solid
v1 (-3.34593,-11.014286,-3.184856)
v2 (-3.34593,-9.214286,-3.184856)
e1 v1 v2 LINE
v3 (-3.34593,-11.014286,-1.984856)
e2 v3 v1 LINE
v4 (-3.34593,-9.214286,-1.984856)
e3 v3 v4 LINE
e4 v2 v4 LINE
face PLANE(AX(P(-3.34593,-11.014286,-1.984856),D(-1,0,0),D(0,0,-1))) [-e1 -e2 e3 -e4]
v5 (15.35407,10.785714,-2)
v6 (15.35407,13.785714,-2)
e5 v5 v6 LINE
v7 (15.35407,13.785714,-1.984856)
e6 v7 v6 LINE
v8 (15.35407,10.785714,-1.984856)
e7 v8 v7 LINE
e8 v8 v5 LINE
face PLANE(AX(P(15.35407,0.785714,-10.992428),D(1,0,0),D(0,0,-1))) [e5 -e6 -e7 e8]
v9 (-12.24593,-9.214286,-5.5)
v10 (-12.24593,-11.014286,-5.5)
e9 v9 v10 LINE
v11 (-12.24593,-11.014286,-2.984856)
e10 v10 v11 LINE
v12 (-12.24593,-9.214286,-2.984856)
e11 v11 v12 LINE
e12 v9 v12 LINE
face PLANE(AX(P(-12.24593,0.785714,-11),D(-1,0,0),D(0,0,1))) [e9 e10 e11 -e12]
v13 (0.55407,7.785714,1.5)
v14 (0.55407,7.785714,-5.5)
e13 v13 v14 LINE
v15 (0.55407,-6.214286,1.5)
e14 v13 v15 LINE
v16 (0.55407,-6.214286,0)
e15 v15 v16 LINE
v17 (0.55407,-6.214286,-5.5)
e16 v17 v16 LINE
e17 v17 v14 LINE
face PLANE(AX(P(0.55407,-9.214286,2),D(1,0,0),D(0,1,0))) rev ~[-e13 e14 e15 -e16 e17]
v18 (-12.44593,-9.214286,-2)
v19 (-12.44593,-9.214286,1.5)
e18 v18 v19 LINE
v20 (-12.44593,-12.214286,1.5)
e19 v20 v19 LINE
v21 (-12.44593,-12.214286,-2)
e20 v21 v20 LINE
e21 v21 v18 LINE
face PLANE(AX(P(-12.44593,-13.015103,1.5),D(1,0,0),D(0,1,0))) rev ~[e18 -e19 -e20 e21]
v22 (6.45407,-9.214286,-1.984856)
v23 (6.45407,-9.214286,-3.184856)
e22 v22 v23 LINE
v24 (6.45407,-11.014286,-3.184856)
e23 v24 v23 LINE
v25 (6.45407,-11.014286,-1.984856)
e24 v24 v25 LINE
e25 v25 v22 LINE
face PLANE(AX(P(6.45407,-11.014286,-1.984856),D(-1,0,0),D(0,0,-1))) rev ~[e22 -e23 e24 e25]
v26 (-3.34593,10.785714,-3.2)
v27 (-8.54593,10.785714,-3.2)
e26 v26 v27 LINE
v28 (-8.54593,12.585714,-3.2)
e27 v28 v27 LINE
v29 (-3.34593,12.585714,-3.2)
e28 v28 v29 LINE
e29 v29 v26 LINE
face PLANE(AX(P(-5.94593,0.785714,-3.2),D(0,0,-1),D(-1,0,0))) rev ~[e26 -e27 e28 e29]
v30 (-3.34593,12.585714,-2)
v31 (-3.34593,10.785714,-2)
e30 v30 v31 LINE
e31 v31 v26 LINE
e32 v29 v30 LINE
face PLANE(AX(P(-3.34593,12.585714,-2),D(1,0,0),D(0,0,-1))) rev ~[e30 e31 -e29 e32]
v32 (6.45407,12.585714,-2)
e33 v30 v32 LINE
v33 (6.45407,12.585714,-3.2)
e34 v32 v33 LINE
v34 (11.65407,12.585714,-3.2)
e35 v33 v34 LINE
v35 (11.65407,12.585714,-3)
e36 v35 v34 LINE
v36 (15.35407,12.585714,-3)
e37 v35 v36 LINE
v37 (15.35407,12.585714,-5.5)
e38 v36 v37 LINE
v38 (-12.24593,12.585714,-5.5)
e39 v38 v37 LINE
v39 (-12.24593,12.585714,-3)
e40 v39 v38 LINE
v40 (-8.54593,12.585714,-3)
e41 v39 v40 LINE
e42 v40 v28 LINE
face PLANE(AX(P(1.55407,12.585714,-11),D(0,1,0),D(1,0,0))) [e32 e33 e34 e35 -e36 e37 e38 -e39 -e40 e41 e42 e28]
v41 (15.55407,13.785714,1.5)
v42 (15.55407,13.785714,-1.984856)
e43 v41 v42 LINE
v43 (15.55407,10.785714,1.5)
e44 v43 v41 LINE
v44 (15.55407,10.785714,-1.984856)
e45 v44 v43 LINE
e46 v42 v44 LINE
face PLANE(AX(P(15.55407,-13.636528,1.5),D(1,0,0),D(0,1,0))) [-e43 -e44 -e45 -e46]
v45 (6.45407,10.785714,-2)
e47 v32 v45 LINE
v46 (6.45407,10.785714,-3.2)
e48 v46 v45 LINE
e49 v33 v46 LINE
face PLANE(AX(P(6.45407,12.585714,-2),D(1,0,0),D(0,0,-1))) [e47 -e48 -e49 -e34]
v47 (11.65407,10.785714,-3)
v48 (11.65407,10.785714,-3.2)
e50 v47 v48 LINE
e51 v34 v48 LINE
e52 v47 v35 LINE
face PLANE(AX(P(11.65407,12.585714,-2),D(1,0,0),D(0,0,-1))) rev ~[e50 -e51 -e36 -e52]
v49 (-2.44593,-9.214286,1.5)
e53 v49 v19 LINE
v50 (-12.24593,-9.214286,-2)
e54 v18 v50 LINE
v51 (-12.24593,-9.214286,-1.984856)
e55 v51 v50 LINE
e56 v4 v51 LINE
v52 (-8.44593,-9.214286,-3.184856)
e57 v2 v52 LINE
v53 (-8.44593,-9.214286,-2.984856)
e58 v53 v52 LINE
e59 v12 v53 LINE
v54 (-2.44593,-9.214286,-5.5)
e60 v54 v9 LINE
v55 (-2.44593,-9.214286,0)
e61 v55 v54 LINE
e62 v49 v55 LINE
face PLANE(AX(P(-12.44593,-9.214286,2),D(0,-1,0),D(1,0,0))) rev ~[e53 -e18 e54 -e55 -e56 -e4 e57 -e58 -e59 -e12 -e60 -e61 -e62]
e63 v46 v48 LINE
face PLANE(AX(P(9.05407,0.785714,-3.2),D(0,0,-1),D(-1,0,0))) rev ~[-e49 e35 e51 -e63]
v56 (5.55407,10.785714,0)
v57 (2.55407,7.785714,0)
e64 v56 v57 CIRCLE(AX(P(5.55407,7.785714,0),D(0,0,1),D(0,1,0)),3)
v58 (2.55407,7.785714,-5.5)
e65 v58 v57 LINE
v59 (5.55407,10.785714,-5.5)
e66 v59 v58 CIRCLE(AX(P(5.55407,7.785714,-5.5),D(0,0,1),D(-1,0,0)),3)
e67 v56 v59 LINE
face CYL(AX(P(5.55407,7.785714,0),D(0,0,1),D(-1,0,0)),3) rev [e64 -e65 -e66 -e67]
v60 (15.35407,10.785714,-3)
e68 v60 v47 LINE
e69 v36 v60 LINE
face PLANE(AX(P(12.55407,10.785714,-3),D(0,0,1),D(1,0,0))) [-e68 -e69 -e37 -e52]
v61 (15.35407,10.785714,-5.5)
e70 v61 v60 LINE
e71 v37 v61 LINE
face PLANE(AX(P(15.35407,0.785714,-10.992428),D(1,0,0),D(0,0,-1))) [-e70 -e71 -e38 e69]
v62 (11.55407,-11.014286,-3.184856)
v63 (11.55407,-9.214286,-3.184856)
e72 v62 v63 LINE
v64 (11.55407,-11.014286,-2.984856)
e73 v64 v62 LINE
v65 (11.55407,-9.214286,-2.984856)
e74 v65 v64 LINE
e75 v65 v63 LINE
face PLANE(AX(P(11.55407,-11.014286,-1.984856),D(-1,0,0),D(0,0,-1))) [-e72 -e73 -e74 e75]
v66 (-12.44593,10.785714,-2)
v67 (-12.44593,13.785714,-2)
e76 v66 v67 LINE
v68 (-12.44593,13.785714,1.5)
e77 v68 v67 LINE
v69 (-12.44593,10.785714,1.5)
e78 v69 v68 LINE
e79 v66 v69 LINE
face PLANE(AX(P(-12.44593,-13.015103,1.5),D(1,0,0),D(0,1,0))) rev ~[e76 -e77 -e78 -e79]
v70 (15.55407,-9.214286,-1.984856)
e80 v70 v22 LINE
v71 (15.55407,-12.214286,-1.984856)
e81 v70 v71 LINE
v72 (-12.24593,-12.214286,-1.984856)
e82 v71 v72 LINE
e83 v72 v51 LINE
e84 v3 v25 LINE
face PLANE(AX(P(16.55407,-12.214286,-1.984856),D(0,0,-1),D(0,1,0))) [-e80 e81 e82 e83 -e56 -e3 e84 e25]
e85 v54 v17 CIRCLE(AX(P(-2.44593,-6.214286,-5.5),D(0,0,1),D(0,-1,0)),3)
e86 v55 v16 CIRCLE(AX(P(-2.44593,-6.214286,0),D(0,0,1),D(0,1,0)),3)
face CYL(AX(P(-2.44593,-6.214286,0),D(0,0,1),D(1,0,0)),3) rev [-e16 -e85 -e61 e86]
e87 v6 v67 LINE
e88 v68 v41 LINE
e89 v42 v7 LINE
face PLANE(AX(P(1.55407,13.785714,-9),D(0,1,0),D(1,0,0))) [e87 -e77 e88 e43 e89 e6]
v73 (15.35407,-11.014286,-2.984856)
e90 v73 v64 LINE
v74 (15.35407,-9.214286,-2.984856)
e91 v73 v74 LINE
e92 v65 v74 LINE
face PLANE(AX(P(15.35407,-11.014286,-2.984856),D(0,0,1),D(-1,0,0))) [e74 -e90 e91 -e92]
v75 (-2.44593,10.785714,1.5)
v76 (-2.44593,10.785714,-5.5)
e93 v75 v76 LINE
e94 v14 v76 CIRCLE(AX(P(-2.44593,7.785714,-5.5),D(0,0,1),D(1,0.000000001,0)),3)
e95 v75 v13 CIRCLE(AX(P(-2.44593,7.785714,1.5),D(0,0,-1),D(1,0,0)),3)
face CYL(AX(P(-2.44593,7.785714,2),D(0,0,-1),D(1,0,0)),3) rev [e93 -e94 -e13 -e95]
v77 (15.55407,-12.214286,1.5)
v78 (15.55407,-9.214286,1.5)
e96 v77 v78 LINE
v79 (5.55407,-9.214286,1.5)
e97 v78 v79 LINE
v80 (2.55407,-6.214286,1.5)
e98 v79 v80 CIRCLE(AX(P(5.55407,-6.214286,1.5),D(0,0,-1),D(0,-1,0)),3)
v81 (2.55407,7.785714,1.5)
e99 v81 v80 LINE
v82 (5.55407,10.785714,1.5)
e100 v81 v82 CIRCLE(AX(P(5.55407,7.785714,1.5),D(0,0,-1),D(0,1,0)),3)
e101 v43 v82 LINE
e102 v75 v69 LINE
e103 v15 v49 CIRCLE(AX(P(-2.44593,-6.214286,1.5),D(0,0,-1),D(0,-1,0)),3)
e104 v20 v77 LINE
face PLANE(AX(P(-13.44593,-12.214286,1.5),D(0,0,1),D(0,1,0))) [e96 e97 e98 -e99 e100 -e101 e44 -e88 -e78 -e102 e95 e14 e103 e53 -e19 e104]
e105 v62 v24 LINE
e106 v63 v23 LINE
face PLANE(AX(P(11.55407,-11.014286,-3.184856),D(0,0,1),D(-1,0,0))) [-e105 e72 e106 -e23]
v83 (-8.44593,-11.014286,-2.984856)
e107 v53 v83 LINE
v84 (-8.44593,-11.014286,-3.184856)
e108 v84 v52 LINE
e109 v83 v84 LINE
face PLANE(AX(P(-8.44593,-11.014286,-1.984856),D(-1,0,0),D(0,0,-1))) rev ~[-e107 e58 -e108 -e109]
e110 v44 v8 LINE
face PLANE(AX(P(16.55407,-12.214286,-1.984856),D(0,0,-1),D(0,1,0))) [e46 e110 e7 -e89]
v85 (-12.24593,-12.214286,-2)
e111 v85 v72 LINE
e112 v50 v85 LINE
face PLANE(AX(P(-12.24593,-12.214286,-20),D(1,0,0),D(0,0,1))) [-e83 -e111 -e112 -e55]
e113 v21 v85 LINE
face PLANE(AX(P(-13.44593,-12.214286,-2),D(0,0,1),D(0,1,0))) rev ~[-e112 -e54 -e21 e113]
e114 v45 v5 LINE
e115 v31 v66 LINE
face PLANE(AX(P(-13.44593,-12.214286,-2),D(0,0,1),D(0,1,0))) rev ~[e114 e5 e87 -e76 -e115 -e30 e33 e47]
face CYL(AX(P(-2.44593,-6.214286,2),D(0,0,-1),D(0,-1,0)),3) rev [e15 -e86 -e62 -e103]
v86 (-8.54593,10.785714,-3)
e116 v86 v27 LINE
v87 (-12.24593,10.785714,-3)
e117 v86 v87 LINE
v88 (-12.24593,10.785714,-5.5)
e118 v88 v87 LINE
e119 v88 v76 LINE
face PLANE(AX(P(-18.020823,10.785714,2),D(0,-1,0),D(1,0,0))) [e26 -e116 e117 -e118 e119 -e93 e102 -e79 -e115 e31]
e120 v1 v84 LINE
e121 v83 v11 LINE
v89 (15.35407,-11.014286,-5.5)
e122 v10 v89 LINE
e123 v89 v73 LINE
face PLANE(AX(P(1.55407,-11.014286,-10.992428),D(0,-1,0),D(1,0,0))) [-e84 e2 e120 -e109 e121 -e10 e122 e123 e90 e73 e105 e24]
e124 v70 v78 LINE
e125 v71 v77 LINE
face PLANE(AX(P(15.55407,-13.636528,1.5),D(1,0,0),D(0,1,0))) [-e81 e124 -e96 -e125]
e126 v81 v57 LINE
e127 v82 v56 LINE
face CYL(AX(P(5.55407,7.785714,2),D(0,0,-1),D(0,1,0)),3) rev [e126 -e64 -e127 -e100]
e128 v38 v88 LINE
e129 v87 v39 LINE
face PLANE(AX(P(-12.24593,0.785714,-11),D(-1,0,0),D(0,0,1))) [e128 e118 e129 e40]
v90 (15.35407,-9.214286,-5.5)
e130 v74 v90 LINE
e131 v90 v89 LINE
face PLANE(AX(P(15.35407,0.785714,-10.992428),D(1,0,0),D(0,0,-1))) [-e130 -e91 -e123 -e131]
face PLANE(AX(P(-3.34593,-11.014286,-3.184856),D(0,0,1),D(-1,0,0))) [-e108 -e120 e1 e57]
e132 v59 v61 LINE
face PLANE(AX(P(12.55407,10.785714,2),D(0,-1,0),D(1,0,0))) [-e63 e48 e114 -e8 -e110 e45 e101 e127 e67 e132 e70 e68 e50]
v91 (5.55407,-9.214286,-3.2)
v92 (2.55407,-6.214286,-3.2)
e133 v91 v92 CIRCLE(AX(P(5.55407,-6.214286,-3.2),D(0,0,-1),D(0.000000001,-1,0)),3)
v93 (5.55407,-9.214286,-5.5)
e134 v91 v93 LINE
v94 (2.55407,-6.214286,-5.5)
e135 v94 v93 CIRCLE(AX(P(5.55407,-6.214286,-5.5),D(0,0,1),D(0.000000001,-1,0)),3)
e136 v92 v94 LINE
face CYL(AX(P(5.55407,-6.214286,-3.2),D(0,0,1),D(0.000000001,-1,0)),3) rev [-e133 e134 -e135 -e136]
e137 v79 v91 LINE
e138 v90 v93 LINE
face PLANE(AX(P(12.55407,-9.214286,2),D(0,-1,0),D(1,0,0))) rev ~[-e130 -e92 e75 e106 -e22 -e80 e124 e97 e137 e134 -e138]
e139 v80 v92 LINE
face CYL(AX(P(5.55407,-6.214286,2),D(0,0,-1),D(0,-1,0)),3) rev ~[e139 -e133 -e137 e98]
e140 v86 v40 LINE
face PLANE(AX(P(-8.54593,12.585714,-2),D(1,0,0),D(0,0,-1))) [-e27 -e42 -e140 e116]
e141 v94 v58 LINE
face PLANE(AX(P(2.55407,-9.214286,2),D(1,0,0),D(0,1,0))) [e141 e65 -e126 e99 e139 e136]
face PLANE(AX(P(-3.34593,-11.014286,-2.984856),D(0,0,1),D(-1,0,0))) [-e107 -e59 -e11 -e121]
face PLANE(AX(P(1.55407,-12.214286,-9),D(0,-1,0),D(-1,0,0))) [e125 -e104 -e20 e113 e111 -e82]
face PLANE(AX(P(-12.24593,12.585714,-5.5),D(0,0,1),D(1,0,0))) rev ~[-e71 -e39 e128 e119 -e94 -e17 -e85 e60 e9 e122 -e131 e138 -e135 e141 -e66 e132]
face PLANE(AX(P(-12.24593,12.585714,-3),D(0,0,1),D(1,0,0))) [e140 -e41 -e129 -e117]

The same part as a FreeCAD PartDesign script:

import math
import FreeCAD as App
import Part
import Sketcher


def edges_at(feature, points):
    """Names of the edges that pass closest to the given points."""
    edges = feature.Shape.Edges
    near = lambda p: min(range(len(edges)), key=lambda i: edges[i].distToShape(Part.Vertex(*p))[0])
    return sorted({f"Edge{near(p) + 1}" for p in points})


def add_polygon(sketch, points):
    """Adds a closed chain of lines whose ends are joined by coincident constraints."""
    first, n = sketch.GeometryCount, len(points)
    for a, b in zip(points, points[1:] + points[:1]):
        sketch.addGeometry(Part.LineSegment(App.Vector(*a, 0), App.Vector(*b, 0)), False)
    for i in range(n):
        sketch.addConstraint(Sketcher.Constraint("Coincident", first + i, 2, first + (i + 1) % n, 1))

doc = App.newDocument("Part")
body = doc.addObject("PartDesign::Body", "Body")

# Sketch on XY plane
sketch1 = body.newObject("Sketcher::SketchObject", "Sketch")
sketch1.AttachmentSupport = (doc.getObject("XY_Plane"), [""])
sketch1.MapMode = "FlatFace"
add_polygon(sketch1, [(-13.44593, 11.785714), (-13.44593, -10.214286), (16.55407, -10.214286), (16.55407, 11.785714)])  # lines 0-3
sketch1.addConstraint([
    Sketcher.Constraint("Vertical", 0),
    Sketcher.Constraint("Horizontal", 1),
    Sketcher.Constraint("Vertical", 2),
    Sketcher.Constraint("Horizontal", 3),
    Sketcher.Constraint("DistanceX", 1, 1, 1, 2, 30.0),
    Sketcher.Constraint("DistanceY", 0, 2, 0, 1, 22.0),
    Sketcher.Constraint("DistanceX", 0, 2, -1, 1, 13.44593),
    Sketcher.Constraint("DistanceY", 0, 2, -1, 1, 10.214286),
])
pad1 = body.newObject("PartDesign::Pad", "Pad")
pad1.Profile = sketch1
pad1.Length = 2

# Sketch on XY plane
sketch2 = body.newObject("Sketcher::SketchObject", "Sketch001")
sketch2.AttachmentSupport = (doc.getObject("XY_Plane"), [""])
sketch2.MapMode = "FlatFace"
sketch2.AttachmentOffset = App.Placement(App.Vector(0, 0, 2), App.Rotation())
add_polygon(sketch2, [(-12.44593, 10.785714), (-12.44593, -9.214286), (0.55407, -9.214286), (0.55407, 10.785714)])  # lines 0-3
add_polygon(sketch2, [(2.55407, 10.785714), (2.55407, -9.214286), (15.55407, -9.214286), (15.55407, 10.785714)])  # lines 4-7
sketch2.addConstraint([
    Sketcher.Constraint("Vertical", 0),
    Sketcher.Constraint("Horizontal", 1),
    Sketcher.Constraint("Vertical", 2),
    Sketcher.Constraint("Horizontal", 3),
    Sketcher.Constraint("Vertical", 4),
    Sketcher.Constraint("Horizontal", 5),
    Sketcher.Constraint("Vertical", 6),
    Sketcher.Constraint("Horizontal", 7),
    Sketcher.Constraint("Horizontal", 1, 2, 4, 2),
    Sketcher.Constraint("Horizontal", 3, 2, 6, 2),
    Sketcher.Constraint("Equal", 3, 5),
    Sketcher.Constraint("DistanceX", 1, 1, 1, 2, 13.0),
    Sketcher.Constraint("DistanceY", 0, 2, 0, 1, 20.0),
    Sketcher.Constraint("DistanceX", 1, 2, 4, 2, 2.0),
    Sketcher.Constraint("DistanceX", 0, 2, -1, 1, 12.44593),
    Sketcher.Constraint("DistanceY", 0, 2, -1, 1, 9.214286),
])
pocket1 = body.newObject("PartDesign::Pocket", "Pocket")
pocket1.Profile = sketch2
pocket1.Length = 2
doc.recompute()

fillet = body.newObject("PartDesign::Fillet", "Fillet")
fillet.Base = (pocket1, edges_at(pocket1, [
    (-12.446, -9.214, 1),
    (-12.446, 10.786, 1),
    (0.554, 10.786, 1),
    (0.554, -9.214, 1),
    (15.554, 10.786, 1),
    (15.554, -9.214, 1),
    (2.554, -9.214, 1),
    (2.554, 10.786, 1),
]))
fillet.Radius = 3

# Sketch on XY plane
sketch3 = body.newObject("Sketcher::SketchObject", "Sketch002")
sketch3.AttachmentSupport = (doc.getObject("XY_Plane"), [""])
sketch3.MapMode = "FlatFace"
add_polygon(sketch3, [(16.55407, 11.785714), (16.55407, -10.214286), (-13.44593, -10.214286), (-13.44593, 11.785714)])  # lines 0-3
sketch3.addConstraint([
    Sketcher.Constraint("Vertical", 0),
    Sketcher.Constraint("Horizontal", 1),
    Sketcher.Constraint("Vertical", 2),
    Sketcher.Constraint("Horizontal", 3),
    Sketcher.Constraint("DistanceX", 1, 2, 1, 1, 30.0),
    Sketcher.Constraint("DistanceY", 0, 2, 0, 1, 22.0),
    Sketcher.Constraint("DistanceX", -1, 1, 0, 2, 16.55407),
    Sketcher.Constraint("DistanceY", 0, 2, -1, 1, 10.214286),
])
pad2 = body.newObject("PartDesign::Pad", "Pad001")
pad2.Profile = sketch3
pad2.Length = 20
pad2.Reversed = True

# Sketch on XZ plane
sketch4 = body.newObject("Sketcher::SketchObject", "Sketch003")
sketch4.AttachmentSupport = (doc.getObject("XZ_Plane"), [""])
sketch4.MapMode = "FlatFace"
sketch4.AttachmentOffset = App.Placement(App.Vector(0, 0, -11.785714), App.Rotation())
add_polygon(sketch4, [(-13.44593, -20), (-13.44593, 2), (16.55407, 2), (16.55407, -20)])  # lines 0-3
sketch4.addConstraint([
    Sketcher.Constraint("Vertical", 0),
    Sketcher.Constraint("Horizontal", 1),
    Sketcher.Constraint("Vertical", 2),
    Sketcher.Constraint("Horizontal", 3),
    Sketcher.Constraint("DistanceX", 1, 1, 1, 2, 30.0),
    Sketcher.Constraint("DistanceY", 0, 1, 0, 2, 22.0),
    Sketcher.Constraint("DistanceY", -1, 1, 0, 2, 2.0),
    Sketcher.Constraint("DistanceX", 0, 2, -1, 1, 13.44593),
])
pad3 = body.newObject("PartDesign::Pad", "Pad002")
pad3.Profile = sketch4
pad3.Length = 2
pad3.Reversed = True

# Sketch on XZ plane
sketch5 = body.newObject("Sketcher::SketchObject", "Sketch004")
sketch5.AttachmentSupport = (doc.getObject("XZ_Plane"), [""])
sketch5.MapMode = "FlatFace"
sketch5.AttachmentOffset = App.Placement(App.Vector(0, 0, 10.214286), App.Rotation())
add_polygon(sketch5, [(16.55407, -20), (16.55407, 2), (-13.44593, 2), (-13.44593, -20)])  # lines 0-3
sketch5.addConstraint([
    Sketcher.Constraint("Vertical", 0),
    Sketcher.Constraint("Horizontal", 1),
    Sketcher.Constraint("Vertical", 2),
    Sketcher.Constraint("Horizontal", 3),
    Sketcher.Constraint("DistanceX", 1, 2, 1, 1, 30.0),
    Sketcher.Constraint("DistanceY", 0, 1, 0, 2, 22.0),
    Sketcher.Constraint("DistanceY", -1, 1, 0, 2, 2.0),
    Sketcher.Constraint("DistanceX", -1, 1, 0, 2, 16.55407),
])
pad4 = body.newObject("PartDesign::Pad", "Pad003")
pad4.Profile = sketch5
pad4.Length = 2

# Sketch on YZ plane
sketch6 = body.newObject("Sketcher::SketchObject", "Sketch005")
sketch6.AttachmentSupport = (doc.getObject("YZ_Plane"), [""])
sketch6.MapMode = "FlatFace"
sketch6.AttachmentOffset = App.Placement(App.Vector(0, 0, 16.55407), App.Rotation())
add_polygon(sketch6, [(13.785714, -1.984856), (-12.214286, -1.984856), (-12.214286, -20), (13.785714, -20)])  # lines 0-3
sketch6.addConstraint([
    Sketcher.Constraint("Horizontal", 0),
    Sketcher.Constraint("Vertical", 1),
    Sketcher.Constraint("Horizontal", 2),
    Sketcher.Constraint("Vertical", 3),
    Sketcher.Constraint("DistanceX", 0, 2, 0, 1, 26.0),
    Sketcher.Constraint("DistanceY", 1, 2, -1, 1, 20.0),
    Sketcher.Constraint("DistanceY", 1, 2, 1, 1, 18.015144),
    Sketcher.Constraint("DistanceX", 0, 2, -1, 1, 12.214286),
])
pocket2 = body.newObject("PartDesign::Pocket", "Pocket001")
pocket2.Profile = sketch6
pocket2.Length = 1.2

# Sketch on YZ plane
sketch7 = body.newObject("Sketcher::SketchObject", "Sketch006")
sketch7.AttachmentSupport = (doc.getObject("YZ_Plane"), [""])
sketch7.MapMode = "FlatFace"
sketch7.AttachmentOffset = App.Placement(App.Vector(0, 0, -13.44593), App.Rotation())
add_polygon(sketch7, [(13.785714, -20), (-12.214286, -20), (-12.214286, -2), (13.785714, -2)])  # lines 0-3
sketch7.addConstraint([
    Sketcher.Constraint("Horizontal", 0),
    Sketcher.Constraint("Vertical", 1),
    Sketcher.Constraint("Horizontal", 2),
    Sketcher.Constraint("Vertical", 3),
    Sketcher.Constraint("DistanceX", 0, 2, 0, 1, 26.0),
    Sketcher.Constraint("DistanceY", 1, 1, 1, 2, 18.0),
    Sketcher.Constraint("DistanceY", 0, 2, -1, 1, 20.0),
    Sketcher.Constraint("DistanceX", 0, 2, -1, 1, 12.214286),
])
pocket3 = body.newObject("PartDesign::Pocket", "Pocket002")
pocket3.Profile = sketch7
pocket3.Length = 1.2
pocket3.Reversed = True

# Sketch on XZ plane
sketch8 = body.newObject("Sketcher::SketchObject", "Sketch007")
sketch8.AttachmentSupport = (doc.getObject("XZ_Plane"), [""])
sketch8.MapMode = "FlatFace"
sketch8.AttachmentOffset = App.Placement(App.Vector(0, 0, -13.785714), App.Rotation())
add_polygon(sketch8, [(-12.24593, -20), (-12.24593, -2), (15.35407, -2), (15.35407, -20)])  # lines 0-3
sketch8.addConstraint([
    Sketcher.Constraint("Vertical", 0),
    Sketcher.Constraint("Horizontal", 1),
    Sketcher.Constraint("Vertical", 2),
    Sketcher.Constraint("Horizontal", 3),
    Sketcher.Constraint("DistanceY", 0, 1, 0, 2, 18.0),
    Sketcher.Constraint("DistanceX", 1, 1, 1, 2, 27.6),
    Sketcher.Constraint("DistanceY", 0, 2, -1, 1, 2.0),
    Sketcher.Constraint("DistanceX", 0, 2, -1, 1, 12.24593),
])
pocket4 = body.newObject("PartDesign::Pocket", "Pocket003")
pocket4.Profile = sketch8
pocket4.Length = 1.2
pocket4.Reversed = True

# Sketch on XZ plane
sketch9 = body.newObject("Sketcher::SketchObject", "Sketch008")
sketch9.AttachmentSupport = (doc.getObject("XZ_Plane"), [""])
sketch9.MapMode = "FlatFace"
sketch9.AttachmentOffset = App.Placement(App.Vector(0, 0, 12.214286), App.Rotation())
add_polygon(sketch9, [(-12.24593, -1.984856), (-12.24593, -20), (15.35407, -20), (15.35407, -1.984856)])  # lines 0-3
sketch9.addConstraint([
    Sketcher.Constraint("Vertical", 0),
    Sketcher.Constraint("Horizontal", 1),
    Sketcher.Constraint("Vertical", 2),
    Sketcher.Constraint("Horizontal", 3),
    Sketcher.Constraint("DistanceX", 1, 1, 1, 2, 27.6),
    Sketcher.Constraint("DistanceY", 0, 2, -1, 1, 20.0),
    Sketcher.Constraint("DistanceY", 0, 2, 0, 1, 18.015144),
    Sketcher.Constraint("DistanceX", 0, 2, -1, 1, 12.24593),
])
pocket5 = body.newObject("PartDesign::Pocket", "Pocket004")
pocket5.Profile = sketch9
pocket5.Length = 1.2

# Sketch on XZ plane
sketch10 = body.newObject("Sketcher::SketchObject", "Sketch009")
sketch10.AttachmentSupport = (doc.getObject("XZ_Plane"), [""])
sketch10.MapMode = "FlatFace"
sketch10.AttachmentOffset = App.Placement(App.Vector(0, 0, -12.585714), App.Rotation())
add_polygon(sketch10, [(-12.24593, -3), (-12.24593, -2), (-3.34593, -2), (-3.34593, -3)])  # lines 0-3
add_polygon(sketch10, [(6.45407, -3), (6.45407, -2), (15.35407, -2), (15.35407, -3)])  # lines 4-7
sketch10.addConstraint([
    Sketcher.Constraint("Vertical", 0),
    Sketcher.Constraint("Horizontal", 1),
    Sketcher.Constraint("Vertical", 2),
    Sketcher.Constraint("Horizontal", 3),
    Sketcher.Constraint("Vertical", 4),
    Sketcher.Constraint("Horizontal", 5),
    Sketcher.Constraint("Vertical", 6),
    Sketcher.Constraint("Horizontal", 7),
    Sketcher.Constraint("Horizontal", 1, 2, 4, 2),
    Sketcher.Constraint("Horizontal", 3, 2, 6, 2),
    Sketcher.Constraint("Equal", 3, 5),
    Sketcher.Constraint("DistanceY", 0, 1, 0, 2, 1.0),
    Sketcher.Constraint("DistanceX", 1, 1, 1, 2, 8.9),
    Sketcher.Constraint("DistanceY", 0, 2, -1, 1, 2.0),
    Sketcher.Constraint("DistanceX", 1, 2, 4, 2, 9.8),
    Sketcher.Constraint("DistanceX", 0, 2, -1, 1, 12.24593),
])
pocket6 = body.newObject("PartDesign::Pocket", "Pocket005")
pocket6.Profile = sketch10
pocket6.Length = 1.8
pocket6.Reversed = True

# Sketch on XZ plane
sketch11 = body.newObject("Sketcher::SketchObject", "Sketch010")
sketch11.AttachmentSupport = (doc.getObject("XZ_Plane"), [""])
sketch11.MapMode = "FlatFace"
sketch11.AttachmentOffset = App.Placement(App.Vector(0, 0, -12.585714), App.Rotation())
add_polygon(sketch11, [(-8.54593, -3.2), (-8.54593, -2), (-3.34593, -2), (-3.34593, -3.2)])  # lines 0-3
add_polygon(sketch11, [(6.45407, -3.2), (6.45407, -2), (11.65407, -2), (11.65407, -3.2)])  # lines 4-7
sketch11.addConstraint([
    Sketcher.Constraint("Vertical", 0),
    Sketcher.Constraint("Horizontal", 1),
    Sketcher.Constraint("Vertical", 2),
    Sketcher.Constraint("Horizontal", 3),
    Sketcher.Constraint("Vertical", 4),
    Sketcher.Constraint("Horizontal", 5),
    Sketcher.Constraint("Vertical", 6),
    Sketcher.Constraint("Horizontal", 7),
    Sketcher.Constraint("Horizontal", 1, 2, 4, 2),
    Sketcher.Constraint("Horizontal", 3, 2, 6, 2),
    Sketcher.Constraint("Equal", 3, 5),
    Sketcher.Constraint("DistanceX", 1, 1, 1, 2, 5.2),
    Sketcher.Constraint("DistanceY", 0, 1, 0, 2, 1.2),
    Sketcher.Constraint("DistanceY", 0, 2, -1, 1, 2.0),
    Sketcher.Constraint("DistanceX", 0, 2, 4, 2, 15.0),
    Sketcher.Constraint("DistanceX", 0, 2, -1, 1, 8.54593),
])
pocket7 = body.newObject("PartDesign::Pocket", "Pocket006")
pocket7.Profile = sketch11
pocket7.Length = 1.8
pocket7.Reversed = True

# Sketch on XY plane
sketch12 = body.newObject("Sketcher::SketchObject", "Sketch011")
sketch12.AttachmentSupport = (doc.getObject("XY_Plane"), [""])
sketch12.MapMode = "FlatFace"
sketch12.addGeometry([
    Part.LineSegment(App.Vector(-2.44593, 10.785714, 0), App.Vector(-9.44593, 10.785714, 0)),  # 0
    Part.ArcOfCircle(Part.Circle(App.Vector(-9.44593, 7.785714, 0), App.Vector(0, 0, 1), 3), math.radians(90), math.radians(180)),  # 1
    Part.LineSegment(App.Vector(-12.44593, 7.785714, 0), App.Vector(-12.44593, -6.214286, 0)),  # 2
    Part.ArcOfCircle(Part.Circle(App.Vector(-9.44593, -6.214286, 0), App.Vector(0, 0, 1), 3), math.radians(180), math.radians(270)),  # 3
    Part.LineSegment(App.Vector(-9.44593, -9.214286, 0), App.Vector(-2.44593, -9.214286, 0)),  # 4
    Part.ArcOfCircle(Part.Circle(App.Vector(-2.44593, -6.214286, 0), App.Vector(0, 0, 1), 3), math.radians(-90), math.radians(0)),  # 5
    Part.LineSegment(App.Vector(0.55407, -6.214286, 0), App.Vector(0.55407, 7.785714, 0)),  # 6
    Part.ArcOfCircle(Part.Circle(App.Vector(-2.44593, 7.785714, 0), App.Vector(0, 0, 1), 3), math.radians(0), math.radians(90)),  # 7
    Part.LineSegment(App.Vector(12.55407, 10.785714, 0), App.Vector(5.55407, 10.785714, 0)),  # 8
    Part.ArcOfCircle(Part.Circle(App.Vector(5.55407, 7.785714, 0), App.Vector(0, 0, 1), 3), math.radians(90), math.radians(180)),  # 9
    Part.LineSegment(App.Vector(2.55407, 7.785714, 0), App.Vector(2.55407, -6.214286, 0)),  # 10
    Part.ArcOfCircle(Part.Circle(App.Vector(5.55407, -6.214286, 0), App.Vector(0, 0, 1), 3), math.radians(180), math.radians(270)),  # 11
    Part.LineSegment(App.Vector(5.55407, -9.214286, 0), App.Vector(12.55407, -9.214286, 0)),  # 12
    Part.ArcOfCircle(Part.Circle(App.Vector(12.55407, -6.214286, 0), App.Vector(0, 0, 1), 3), math.radians(-90), math.radians(0)),  # 13
    Part.LineSegment(App.Vector(15.55407, -6.214286, 0), App.Vector(15.55407, 7.785714, 0)),  # 14
    Part.ArcOfCircle(Part.Circle(App.Vector(12.55407, 7.785714, 0), App.Vector(0, 0, 1), 3), math.radians(0), math.radians(90)),  # 15
], False)
sketch12.addConstraint([
    Sketcher.Constraint("Tangent", 0, 2, 1, 1),
    Sketcher.Constraint("Tangent", 1, 2, 2, 1),
    Sketcher.Constraint("Tangent", 2, 2, 3, 1),
    Sketcher.Constraint("Tangent", 3, 2, 4, 1),
    Sketcher.Constraint("Tangent", 4, 2, 5, 1),
    Sketcher.Constraint("Tangent", 5, 2, 6, 1),
    Sketcher.Constraint("Tangent", 6, 2, 7, 1),
    Sketcher.Constraint("Tangent", 7, 2, 0, 1),
    Sketcher.Constraint("Tangent", 8, 2, 9, 1),
    Sketcher.Constraint("Tangent", 9, 2, 10, 1),
    Sketcher.Constraint("Tangent", 10, 2, 11, 1),
    Sketcher.Constraint("Tangent", 11, 2, 12, 1),
    Sketcher.Constraint("Tangent", 12, 2, 13, 1),
    Sketcher.Constraint("Tangent", 13, 2, 14, 1),
    Sketcher.Constraint("Tangent", 14, 2, 15, 1),
    Sketcher.Constraint("Tangent", 15, 2, 8, 1),
    Sketcher.Constraint("Horizontal", 0),
    Sketcher.Constraint("Vertical", 2),
    Sketcher.Constraint("Horizontal", 4),
    Sketcher.Constraint("Vertical", 6),
    Sketcher.Constraint("Horizontal", 8),
    Sketcher.Constraint("Vertical", 10),
    Sketcher.Constraint("Horizontal", 12),
    Sketcher.Constraint("Vertical", 14),
    Sketcher.Constraint("Equal", 1, 3),
    Sketcher.Constraint("Equal", 3, 5),
    Sketcher.Constraint("Equal", 5, 7),
    Sketcher.Constraint("Equal", 7, 9),
    Sketcher.Constraint("Equal", 9, 11),
    Sketcher.Constraint("Equal", 11, 13),
    Sketcher.Constraint("Equal", 13, 15),
    Sketcher.Constraint("Horizontal", 7, 3, 9, 3),
    Sketcher.Constraint("Horizontal", 5, 3, 11, 3),
    Sketcher.Constraint("Equal", 4, 8),
    Sketcher.Constraint("Radius", 1, 3.0),
    Sketcher.Constraint("DistanceX", 0, 2, 0, 1, 7.0),
    Sketcher.Constraint("DistanceY", 2, 2, 2, 1, 14.0),
    Sketcher.Constraint("DistanceX", 7, 3, 9, 3, 8.0),
    Sketcher.Constraint("DistanceX", 1, 3, -1, 1, 9.44593),
    Sketcher.Constraint("DistanceY", -1, 1, 1, 3, 7.785714),
])
pocket8 = body.newObject("PartDesign::Pocket", "Pocket007")
pocket8.Profile = sketch12
pocket8.Length = 3.2

# Sketch on XZ plane
sketch13 = body.newObject("Sketcher::SketchObject", "Sketch012")
sketch13.AttachmentSupport = (doc.getObject("XZ_Plane"), [""])
sketch13.MapMode = "FlatFace"
sketch13.AttachmentOffset = App.Placement(App.Vector(0, 0, -10.785714), App.Rotation())
add_polygon(sketch13, [(12.55407, -3), (12.55407, -2), (15.35407, -2), (15.35407, -3)])  # lines 0-3
add_polygon(sketch13, [(-12.24593, -3), (-12.24593, -2), (-9.44593, -2), (-9.44593, -3)])  # lines 4-7
sketch13.addConstraint([
    Sketcher.Constraint("Vertical", 0),
    Sketcher.Constraint("Horizontal", 1),
    Sketcher.Constraint("Vertical", 2),
    Sketcher.Constraint("Horizontal", 3),
    Sketcher.Constraint("Vertical", 4),
    Sketcher.Constraint("Horizontal", 5),
    Sketcher.Constraint("Vertical", 6),
    Sketcher.Constraint("Horizontal", 7),
    Sketcher.Constraint("Horizontal", 1, 2, 4, 2),
    Sketcher.Constraint("Horizontal", 3, 2, 6, 2),
    Sketcher.Constraint("Equal", 3, 5),
    Sketcher.Constraint("DistanceY", 0, 1, 0, 2, 1.0),
    Sketcher.Constraint("DistanceX", 1, 1, 1, 2, 2.8),
    Sketcher.Constraint("DistanceY", 0, 2, -1, 1, 2.0),
    Sketcher.Constraint("DistanceX", 5, 2, 0, 2, 22.0),
    Sketcher.Constraint("DistanceX", -1, 1, 0, 2, 12.55407),
])
pocket9 = body.newObject("PartDesign::Pocket", "Pocket008")
pocket9.Profile = sketch13
pocket9.Length = 5
pocket9.Reversed = True

# Sketch on XZ plane
sketch14 = body.newObject("Sketcher::SketchObject", "Sketch013")
sketch14.AttachmentSupport = (doc.getObject("XZ_Plane"), [""])
sketch14.MapMode = "FlatFace"
sketch14.AttachmentOffset = App.Placement(App.Vector(0, 0, 11.014286), App.Rotation())
add_polygon(sketch14, [(-3.34593, -2.984856), (-3.34593, -1.984856), (-12.24593, -1.984856), (-12.24593, -2.984856)])  # lines 0-3
add_polygon(sketch14, [(15.35407, -2.984856), (15.35407, -1.984856), (6.45407, -1.984856), (6.45407, -2.984856)])  # lines 4-7
sketch14.addConstraint([
    Sketcher.Constraint("Vertical", 0),
    Sketcher.Constraint("Horizontal", 1),
    Sketcher.Constraint("Vertical", 2),
    Sketcher.Constraint("Horizontal", 3),
    Sketcher.Constraint("Vertical", 4),
    Sketcher.Constraint("Horizontal", 5),
    Sketcher.Constraint("Vertical", 6),
    Sketcher.Constraint("Horizontal", 7),
    Sketcher.Constraint("Horizontal", 1, 2, 4, 2),
    Sketcher.Constraint("Horizontal", 3, 2, 6, 2),
    Sketcher.Constraint("Equal", 3, 5),
    Sketcher.Constraint("DistanceY", 0, 1, 0, 2, 1.0),
    Sketcher.Constraint("DistanceX", 1, 2, 1, 1, 8.9),
    Sketcher.Constraint("DistanceX", 0, 2, 4, 2, 18.7),
    Sketcher.Constraint("DistanceX", 0, 2, -1, 1, 3.34593),
    Sketcher.Constraint("DistanceY", 0, 2, -1, 1, 1.984856),
])
pocket10 = body.newObject("PartDesign::Pocket", "Pocket009")
pocket10.Profile = sketch14
pocket10.Length = 5

# Sketch on XZ plane
sketch15 = body.newObject("Sketcher::SketchObject", "Sketch014")
sketch15.AttachmentSupport = (doc.getObject("XZ_Plane"), [""])
sketch15.MapMode = "FlatFace"
sketch15.AttachmentOffset = App.Placement(App.Vector(0, 0, 11.014286), App.Rotation())
add_polygon(sketch15, [(-3.34593, -3.184856), (-3.34593, -1.984856), (-8.44593, -1.984856), (-8.44593, -3.184856)])  # lines 0-3
add_polygon(sketch15, [(11.55407, -3.184856), (11.55407, -1.984856), (6.45407, -1.984856), (6.45407, -3.184856)])  # lines 4-7
sketch15.addConstraint([
    Sketcher.Constraint("Vertical", 0),
    Sketcher.Constraint("Horizontal", 1),
    Sketcher.Constraint("Vertical", 2),
    Sketcher.Constraint("Horizontal", 3),
    Sketcher.Constraint("Vertical", 4),
    Sketcher.Constraint("Horizontal", 5),
    Sketcher.Constraint("Vertical", 6),
    Sketcher.Constraint("Horizontal", 7),
    Sketcher.Constraint("Horizontal", 1, 2, 4, 2),
    Sketcher.Constraint("Horizontal", 3, 2, 6, 2),
    Sketcher.Constraint("Equal", 3, 5),
    Sketcher.Constraint("DistanceX", 1, 2, 1, 1, 5.1),
    Sketcher.Constraint("DistanceY", 0, 1, 0, 2, 1.2),
    Sketcher.Constraint("DistanceX", 1, 2, 4, 2, 20.0),
    Sketcher.Constraint("DistanceX", 0, 2, -1, 1, 3.34593),
    Sketcher.Constraint("DistanceY", 0, 2, -1, 1, 1.984856),
])
pocket11 = body.newObject("PartDesign::Pocket", "Pocket010")
pocket11.Profile = sketch15
pocket11.Length = 5

# Sketch on XZ plane
sketch16 = body.newObject("Sketcher::SketchObject", "Sketch015")
sketch16.AttachmentSupport = (doc.getObject("XZ_Plane"), [""])
sketch16.MapMode = "FlatFace"
sketch16.AttachmentOffset = App.Placement(App.Vector(0, 0, -12.585714), App.Rotation())
add_polygon(sketch16, [(-12.24593, -20), (-12.24593, -5.5), (15.35407, -5.5), (15.35407, -20)])  # lines 0-3
sketch16.addConstraint([
    Sketcher.Constraint("Vertical", 0),
    Sketcher.Constraint("Horizontal", 1),
    Sketcher.Constraint("Vertical", 2),
    Sketcher.Constraint("Horizontal", 3),
    Sketcher.Constraint("DistanceX", 1, 1, 1, 2, 27.6),
    Sketcher.Constraint("DistanceY", 0, 1, 0, 2, 14.5),
    Sketcher.Constraint("DistanceY", 2, 2, -1, 1, 20.0),
    Sketcher.Constraint("DistanceX", 0, 2, -1, 1, 12.24593),
])
pocket12 = body.newObject("PartDesign::Pocket", "Pocket011")
pocket12.Profile = sketch16
pocket12.Length = 23.6
pocket12.Reversed = True

# Sketch on XY plane
sketch17 = body.newObject("Sketcher::SketchObject", "Sketch016")
sketch17.AttachmentSupport = (doc.getObject("XY_Plane"), [""])
sketch17.MapMode = "FlatFace"
sketch17.AttachmentOffset = App.Placement(App.Vector(0, 0, -3.2), App.Rotation())
sketch17.addGeometry([
    Part.LineSegment(App.Vector(-12.44593, 7.785714, 0), App.Vector(-12.44593, -6.214286, 0)),  # 0
    Part.ArcOfCircle(Part.Circle(App.Vector(-9.44593, -6.214286, 0), App.Vector(0, 0, 1), 3), math.radians(180), math.radians(270)),  # 1
    Part.LineSegment(App.Vector(-9.44593, -9.214286, 0), App.Vector(-2.44593, -9.214286, 0)),  # 2
    Part.ArcOfCircle(Part.Circle(App.Vector(-2.44593, -6.214286, 0), App.Vector(0, 0, 1), 3), math.radians(-90), math.radians(0)),  # 3
    Part.LineSegment(App.Vector(0.55407, -6.214286, 0), App.Vector(0.55407, 7.785714, 0)),  # 4
    Part.ArcOfCircle(Part.Circle(App.Vector(-2.44593, 7.785714, 0), App.Vector(0, 0, 1), 3), math.radians(0), math.radians(90)),  # 5
    Part.LineSegment(App.Vector(-2.44593, 10.785714, 0), App.Vector(-9.44593, 10.785714, 0)),  # 6
    Part.ArcOfCircle(Part.Circle(App.Vector(-9.44593, 7.785714, 0), App.Vector(0, 0, 1), 3), math.radians(90), math.radians(180)),  # 7
    Part.LineSegment(App.Vector(12.55407, 10.785714, 0), App.Vector(5.55407, 10.785714, 0)),  # 8
    Part.ArcOfCircle(Part.Circle(App.Vector(5.55407, 7.785714, 0), App.Vector(0, 0, 1), 3), math.radians(90), math.radians(180)),  # 9
    Part.LineSegment(App.Vector(2.55407, 7.785714, 0), App.Vector(2.55407, -6.214286, 0)),  # 10
    Part.ArcOfCircle(Part.Circle(App.Vector(5.55407, -6.214286, 0), App.Vector(0, 0, 1), 3), math.radians(180), math.radians(270)),  # 11
    Part.LineSegment(App.Vector(5.55407, -9.214286, 0), App.Vector(12.55407, -9.214286, 0)),  # 12
    Part.ArcOfCircle(Part.Circle(App.Vector(12.55407, -6.214286, 0), App.Vector(0, 0, 1), 3), math.radians(-90), math.radians(0)),  # 13
    Part.LineSegment(App.Vector(15.55407, -6.214286, 0), App.Vector(15.55407, 7.785714, 0)),  # 14
    Part.ArcOfCircle(Part.Circle(App.Vector(12.55407, 7.785714, 0), App.Vector(0, 0, 1), 3), math.radians(0), math.radians(90)),  # 15
], False)
sketch17.addConstraint([
    Sketcher.Constraint("Tangent", 0, 2, 1, 1),
    Sketcher.Constraint("Tangent", 1, 2, 2, 1),
    Sketcher.Constraint("Tangent", 2, 2, 3, 1),
    Sketcher.Constraint("Tangent", 3, 2, 4, 1),
    Sketcher.Constraint("Tangent", 4, 2, 5, 1),
    Sketcher.Constraint("Tangent", 5, 2, 6, 1),
    Sketcher.Constraint("Tangent", 6, 2, 7, 1),
    Sketcher.Constraint("Tangent", 7, 2, 0, 1),
    Sketcher.Constraint("Tangent", 8, 2, 9, 1),
    Sketcher.Constraint("Tangent", 9, 2, 10, 1),
    Sketcher.Constraint("Tangent", 10, 2, 11, 1),
    Sketcher.Constraint("Tangent", 11, 2, 12, 1),
    Sketcher.Constraint("Tangent", 12, 2, 13, 1),
    Sketcher.Constraint("Tangent", 13, 2, 14, 1),
    Sketcher.Constraint("Tangent", 14, 2, 15, 1),
    Sketcher.Constraint("Tangent", 15, 2, 8, 1),
    Sketcher.Constraint("Vertical", 0),
    Sketcher.Constraint("Horizontal", 2),
    Sketcher.Constraint("Vertical", 4),
    Sketcher.Constraint("Horizontal", 6),
    Sketcher.Constraint("Horizontal", 8),
    Sketcher.Constraint("Vertical", 10),
    Sketcher.Constraint("Horizontal", 12),
    Sketcher.Constraint("Vertical", 14),
    Sketcher.Constraint("Equal", 1, 3),
    Sketcher.Constraint("Equal", 3, 5),
    Sketcher.Constraint("Equal", 5, 7),
    Sketcher.Constraint("Equal", 7, 9),
    Sketcher.Constraint("Equal", 9, 11),
    Sketcher.Constraint("Equal", 11, 13),
    Sketcher.Constraint("Equal", 13, 15),
    Sketcher.Constraint("Horizontal", 7, 3, 9, 3),
    Sketcher.Constraint("Horizontal", 3, 3, 11, 3),
    Sketcher.Constraint("Equal", 6, 8),
    Sketcher.Constraint("Radius", 1, 3.0),
    Sketcher.Constraint("DistanceX", 2, 1, 2, 2, 7.0),
    Sketcher.Constraint("DistanceY", 0, 2, 0, 1, 14.0),
    Sketcher.Constraint("DistanceX", 5, 3, 9, 3, 8.0),
    Sketcher.Constraint("DistanceX", 1, 3, -1, 1, 9.44593),
    Sketcher.Constraint("DistanceY", 1, 3, -1, 1, 6.214286),
])
pocket13 = body.newObject("PartDesign::Pocket", "Pocket012")
pocket13.Profile = sketch17
pocket13.Length = 5

# Sketch on XY plane
sketch18 = body.newObject("Sketcher::SketchObject", "Sketch017")
sketch18.AttachmentSupport = (doc.getObject("XY_Plane"), [""])
sketch18.MapMode = "FlatFace"
sketch18.AttachmentOffset = App.Placement(App.Vector(0, 0, -5.5), App.Rotation())
add_polygon(sketch18, [(15.35407, 10.785714), (15.35407, -9.214286), (12.55407, -9.214286), (12.55407, 10.785714)])  # lines 0-3
add_polygon(sketch18, [(-9.44593, 10.785714), (-9.44593, -9.214286), (-12.24593, -9.214286), (-12.24593, 10.785714)])  # lines 4-7
sketch18.addConstraint([
    Sketcher.Constraint("Vertical", 0),
    Sketcher.Constraint("Horizontal", 1),
    Sketcher.Constraint("Vertical", 2),
    Sketcher.Constraint("Horizontal", 3),
    Sketcher.Constraint("Vertical", 4),
    Sketcher.Constraint("Horizontal", 5),
    Sketcher.Constraint("Vertical", 6),
    Sketcher.Constraint("Horizontal", 7),
    Sketcher.Constraint("Horizontal", 1, 2, 4, 2),
    Sketcher.Constraint("Horizontal", 3, 2, 6, 2),
    Sketcher.Constraint("Equal", 3, 5),
    Sketcher.Constraint("DistanceY", 0, 2, 0, 1, 20.0),
    Sketcher.Constraint("DistanceX", 1, 2, 1, 1, 2.8),
    Sketcher.Constraint("DistanceX", 4, 2, 1, 2, 22.0),
    Sketcher.Constraint("DistanceX", -1, 1, 0, 2, 15.35407),
    Sketcher.Constraint("DistanceY", 0, 2, -1, 1, 9.214286),
])
pocket14 = body.newObject("PartDesign::Pocket", "Pocket013")
pocket14.Profile = sketch18
pocket14.Length = 3.5
pocket14.Reversed = True

# Sketch on XY plane
sketch19 = body.newObject("Sketcher::SketchObject", "Sketch018")
sketch19.AttachmentSupport = (doc.getObject("XY_Plane"), [""])
sketch19.MapMode = "FlatFace"
sketch19.AttachmentOffset = App.Placement(App.Vector(0, 0, 2), App.Rotation())
add_polygon(sketch19, [(-18.020823, 10.785714), (-18.020823, -9.214286), (-9.44593, -9.214286), (-9.44593, 10.785714)])  # lines 0-3
add_polygon(sketch19, [(12.55407, 10.785714), (12.55407, -9.214286), (25.168226, -9.214286), (25.168226, 10.785714)])  # lines 4-7
sketch19.addConstraint([
    Sketcher.Constraint("Vertical", 0),
    Sketcher.Constraint("Horizontal", 1),
    Sketcher.Constraint("Vertical", 2),
    Sketcher.Constraint("Horizontal", 3),
    Sketcher.Constraint("Vertical", 4),
    Sketcher.Constraint("Horizontal", 5),
    Sketcher.Constraint("Vertical", 6),
    Sketcher.Constraint("Horizontal", 7),
    Sketcher.Constraint("Horizontal", 1, 2, 4, 2),
    Sketcher.Constraint("Horizontal", 3, 2, 6, 2),
    Sketcher.Constraint("DistanceY", 0, 2, 0, 1, 20.0),
    Sketcher.Constraint("DistanceX", 1, 2, 4, 2, 22.0),
    Sketcher.Constraint("DistanceX", 1, 1, 1, 2, 8.574893),
    Sketcher.Constraint("DistanceX", 5, 1, 5, 2, 12.614156),
    Sketcher.Constraint("DistanceX", 1, 2, -1, 1, 9.44593),
    Sketcher.Constraint("DistanceY", 0, 2, -1, 1, 9.214286),
])
pocket15 = body.newObject("PartDesign::Pocket", "Pocket014")
pocket15.Profile = sketch19
pocket15.Length = 5

# Sketch on YZ plane
sketch20 = body.newObject("Sketcher::SketchObject", "Sketch019")
sketch20.AttachmentSupport = (doc.getObject("YZ_Plane"), [""])
sketch20.MapMode = "FlatFace"
sketch20.AttachmentOffset = App.Placement(App.Vector(0, 0, -13.44593), App.Rotation())
add_polygon(sketch20, [(13.785714, 1.5), (-12.214286, 1.5), (-12.214286, 2), (13.785714, 2)])  # lines 0-3
sketch20.addConstraint([
    Sketcher.Constraint("Horizontal", 0),
    Sketcher.Constraint("Vertical", 1),
    Sketcher.Constraint("Horizontal", 2),
    Sketcher.Constraint("Vertical", 3),
    Sketcher.Constraint("DistanceX", 0, 2, 0, 1, 26.0),
    Sketcher.Constraint("DistanceY", 1, 1, 1, 2, 0.5),
    Sketcher.Constraint("DistanceY", -1, 1, 1, 2, 2.0),
    Sketcher.Constraint("DistanceX", 0, 2, -1, 1, 12.214286),
])
pocket16 = body.newObject("PartDesign::Pocket", "Pocket015")
pocket16.Profile = sketch20
pocket16.Length = 100
pocket16.Reversed = True

# Sketch on XY plane
sketch21 = body.newObject("Sketcher::SketchObject", "Sketch020")
sketch21.AttachmentSupport = (doc.getObject("XY_Plane"), [""])
sketch21.MapMode = "FlatFace"
sketch21.AttachmentOffset = App.Placement(App.Vector(0, 0, 1.5), App.Rotation())
add_polygon(sketch21, [(-16.588765, 15.518669), (-16.588765, -13.015103), (-12.44593, -13.015103), (-12.44593, 15.518669)])  # lines 0-3
add_polygon(sketch21, [(15.55407, 15.518669), (15.55407, -13.636528), (20.007617, -13.636528), (20.007617, 15.518669)])  # lines 4-7
sketch21.addConstraint([
    Sketcher.Constraint("Vertical", 0),
    Sketcher.Constraint("Horizontal", 1),
    Sketcher.Constraint("Vertical", 2),
    Sketcher.Constraint("Horizontal", 3),
    Sketcher.Constraint("Vertical", 4),
    Sketcher.Constraint("Horizontal", 5),
    Sketcher.Constraint("Vertical", 6),
    Sketcher.Constraint("Horizontal", 7),
    Sketcher.Constraint("Horizontal", 3, 2, 6, 2),
    Sketcher.Constraint("DistanceX", 1, 2, 4, 2, 28.0),
    Sketcher.Constraint("DistanceX", 1, 1, 1, 2, 4.142834),
    Sketcher.Constraint("DistanceX", 5, 1, 5, 2, 4.453547),
    Sketcher.Constraint("DistanceY", 0, 2, 0, 1, 28.533772),
    Sketcher.Constraint("DistanceY", 4, 2, 4, 1, 29.155198),
    Sketcher.Constraint("DistanceX", 1, 2, -1, 1, 12.44593),
    Sketcher.Constraint("DistanceY", -1, 1, 2, 2, 15.518669),
])
pocket17 = body.newObject("PartDesign::Pocket", "Pocket016")
pocket17.Profile = sketch21
pocket17.Length = 3.5

doc.recompute()
